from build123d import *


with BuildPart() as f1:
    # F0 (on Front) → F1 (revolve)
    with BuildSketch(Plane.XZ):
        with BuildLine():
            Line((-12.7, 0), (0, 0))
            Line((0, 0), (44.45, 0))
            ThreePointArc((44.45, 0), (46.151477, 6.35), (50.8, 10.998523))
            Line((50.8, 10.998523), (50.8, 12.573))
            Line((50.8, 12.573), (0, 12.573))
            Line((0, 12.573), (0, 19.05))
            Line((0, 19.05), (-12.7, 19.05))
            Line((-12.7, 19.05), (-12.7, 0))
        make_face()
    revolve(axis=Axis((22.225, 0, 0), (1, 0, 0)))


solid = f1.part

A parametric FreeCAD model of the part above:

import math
import FreeCAD as App
import Part
import Sketcher
Q = App.Units.Quantity

doc = App.newDocument("Part")
body = doc.addObject("PartDesign::Body", "Body")

sketch1 = body.newObject("Sketcher::SketchObject", "Sketch")
sketch1.AttachmentSupport = (doc.getObject("XZ_Plane"), [""])
sketch1.MapMode = "FlatFace"
sketch1.addGeometry([
    Part.LineSegment(App.Vector(-12.7, 0, 0), App.Vector(44.45, 0, 0)),
    Part.ArcOfCircle(Part.Circle(App.Vector(57.149999, 0.000001, 0), App.Vector(0, 0, 1), 12.699999), math.radians(119.999998), math.radians(180.000004)),
    Part.LineSegment(App.Vector(50.8, 10.998523, 0), App.Vector(50.8, 12.573, 0)),
    Part.LineSegment(App.Vector(50.8, 12.573, 0), App.Vector(0, 12.573, 0)),
    Part.LineSegment(App.Vector(0, 12.573, 0), App.Vector(0, 19.05, 0)),
    Part.LineSegment(App.Vector(0, 19.05, 0), App.Vector(-12.7, 19.05, 0)),
    Part.LineSegment(App.Vector(-12.7, 19.05, 0), App.Vector(-12.7, 0, 0)),
], False)
sketch1.addConstraint([
    Sketcher.Constraint("Coincident", 0, 2, 1, 2),
    Sketcher.Constraint("Coincident", 1, 1, 2, 1),
    Sketcher.Constraint("Coincident", 2, 2, 3, 1),
    Sketcher.Constraint("Coincident", 3, 2, 4, 1),
    Sketcher.Constraint("Coincident", 4, 2, 5, 1),
    Sketcher.Constraint("Coincident", 5, 2, 6, 1),
    Sketcher.Constraint("Coincident", 6, 2, 0, 1),
    Sketcher.Constraint("Horizontal", 0),
    Sketcher.Constraint("Vertical", 2),
    Sketcher.Constraint("Horizontal", 3),
    Sketcher.Constraint("Vertical", 4),
    Sketcher.Constraint("Horizontal", 5),
    Sketcher.Constraint("Vertical", 6),
    Sketcher.Constraint("PointOnObject", 1, 3, -1),
    Sketcher.Constraint("PointOnObject", 0, 2, -1),
    Sketcher.Constraint("PointOnObject", 3, 2, -2),
    Sketcher.Constraint("Radius", 1, Q("0.5 in")),
    Sketcher.Constraint("DistanceX", 3, 2, 3, 1, Q("2 in")),
    Sketcher.Constraint("DistanceX", 5, 2, 5, 1, Q("0.5 in")),
    Sketcher.Constraint("DistanceX", 0, 1, 0, 2, Q("2.25 in")),
    Sketcher.Constraint("DistanceY", 6, 2, 6, 1, Q("0.75 in")),
    Sketcher.Constraint("DistanceY", 4, 1, 4, 2, Q("0.255 in")),
])
revolution = body.newObject("PartDesign::Revolution", "Revolution")
revolution.Profile = sketch1
revolution.ReferenceAxis = (sketch1, ["H_Axis"])
revolution.Angle = 360

doc.recompute()
